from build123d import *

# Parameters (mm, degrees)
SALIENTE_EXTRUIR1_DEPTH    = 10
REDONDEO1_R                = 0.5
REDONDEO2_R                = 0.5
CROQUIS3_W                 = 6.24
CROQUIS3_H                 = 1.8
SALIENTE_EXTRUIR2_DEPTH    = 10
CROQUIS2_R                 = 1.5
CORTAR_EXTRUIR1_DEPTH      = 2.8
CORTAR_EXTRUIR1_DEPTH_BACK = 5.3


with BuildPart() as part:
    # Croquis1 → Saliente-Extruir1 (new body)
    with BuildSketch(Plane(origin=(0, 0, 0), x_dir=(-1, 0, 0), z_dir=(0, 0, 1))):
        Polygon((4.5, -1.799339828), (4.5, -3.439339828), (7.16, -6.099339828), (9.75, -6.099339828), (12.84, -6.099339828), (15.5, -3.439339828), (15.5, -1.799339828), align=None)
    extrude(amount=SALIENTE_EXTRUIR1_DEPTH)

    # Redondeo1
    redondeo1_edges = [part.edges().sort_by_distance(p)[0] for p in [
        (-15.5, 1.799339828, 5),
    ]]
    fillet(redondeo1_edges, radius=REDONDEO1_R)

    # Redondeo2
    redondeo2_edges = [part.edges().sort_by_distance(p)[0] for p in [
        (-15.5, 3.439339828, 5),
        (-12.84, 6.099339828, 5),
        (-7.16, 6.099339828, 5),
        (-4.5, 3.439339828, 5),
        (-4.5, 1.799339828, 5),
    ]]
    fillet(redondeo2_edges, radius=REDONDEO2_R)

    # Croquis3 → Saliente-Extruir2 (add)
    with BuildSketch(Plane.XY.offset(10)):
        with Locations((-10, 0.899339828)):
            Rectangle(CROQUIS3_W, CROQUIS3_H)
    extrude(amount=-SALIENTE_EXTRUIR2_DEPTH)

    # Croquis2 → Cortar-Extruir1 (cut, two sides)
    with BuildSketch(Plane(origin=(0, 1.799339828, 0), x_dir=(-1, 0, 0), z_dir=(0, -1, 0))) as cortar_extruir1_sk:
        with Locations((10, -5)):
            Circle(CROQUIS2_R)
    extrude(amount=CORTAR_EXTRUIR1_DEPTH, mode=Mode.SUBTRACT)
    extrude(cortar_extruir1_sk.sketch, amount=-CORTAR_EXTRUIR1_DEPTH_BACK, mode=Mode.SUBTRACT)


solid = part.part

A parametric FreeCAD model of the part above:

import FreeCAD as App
import Part
import Sketcher
from FreeCAD import Vector


def edges_at(feature, points):
    """Names of the edges that pass closest to the given points."""
    edges = feature.Shape.Edges
    near = lambda p: min(range(len(edges)), key=lambda i: edges[i].distToShape(Part.Vertex(*p))[0])
    return sorted({f"Edge{near(p) + 1}" for p in points})

doc = App.newDocument("Part")
body = doc.addObject("PartDesign::Body", "Body")

# Sketch on XY plane
sketch1 = body.newObject("Sketcher::SketchObject", "Sketch")
sketch1.AttachmentSupport = (doc.getObject("XY_Plane"), [""])
sketch1.MapMode = "FlatFace"
sketch1.addGeometry([
    Part.LineSegment(Vector(-4.5, 1.79934, 0), Vector(-4.5, 3.43934, 0)),  # 0
    Part.LineSegment(Vector(-4.5, 3.43934, 0), Vector(-7.16, 6.09934, 0)),  # 1
    Part.LineSegment(Vector(-7.16, 6.09934, 0), Vector(-12.84, 6.09934, 0)),  # 2
    Part.LineSegment(Vector(-12.84, 6.09934, 0), Vector(-15.5, 3.43934, 0)),  # 3
    Part.LineSegment(Vector(-15.5, 3.43934, 0), Vector(-15.5, 1.79934, 0)),  # 4
    Part.LineSegment(Vector(-15.5, 1.79934, 0), Vector(-4.5, 1.79934, 0)),  # 5
], False)
sketch1.addConstraint([
    Sketcher.Constraint("Coincident", 0, 2, 1, 1),
    Sketcher.Constraint("Coincident", 1, 2, 2, 1),
    Sketcher.Constraint("Coincident", 2, 2, 3, 1),
    Sketcher.Constraint("Coincident", 3, 2, 4, 1),
    Sketcher.Constraint("Coincident", 4, 2, 5, 1),
    Sketcher.Constraint("Coincident", 5, 2, 0, 1),
    Sketcher.Constraint("Vertical", 0),
    Sketcher.Constraint("Horizontal", 2),
    Sketcher.Constraint("Vertical", 4),
    Sketcher.Constraint("Horizontal", 5),
    Sketcher.Constraint("Perpendicular", 1, 3),
    Sketcher.Constraint("Horizontal", 0, 2, 3, 2),
    Sketcher.Constraint("Equal", 1, 3),
    Sketcher.Constraint("DistanceX", 5, 1, 5, 2, 11.0),
    Sketcher.Constraint("DistanceX", 2, 2, 2, 1, 5.68),
    Sketcher.Constraint("DistanceY", 0, 1, 0, 2, 1.64),
    Sketcher.Constraint("DistanceX", 0, 2, -1, 1, 4.5),
    Sketcher.Constraint("DistanceY", -1, 1, 0, 2, 3.43934),
])
pad1 = body.newObject("PartDesign::Pad", "Pad")
pad1.Profile = sketch1
pad1.Length = 10
doc.recompute()

fillet = body.newObject("PartDesign::Fillet", "Fillet")
fillet.Base = (pad1, edges_at(pad1, [(-15.5, 1.799, 5)]))
fillet.Radius = 0.5
doc.recompute()

fillet2 = body.newObject("PartDesign::Fillet", "Fillet001")
fillet2.Base = (fillet, edges_at(fillet, [
    (-15.5, 3.439, 5),
    (-12.84, 6.099, 5),
    (-7.16, 6.099, 5),
    (-4.5, 3.439, 5),
    (-4.5, 1.799, 5),
]))
fillet2.Radius = 0.5

# Sketch on XY plane
sketch2 = body.newObject("Sketcher::SketchObject", "Sketch001")
sketch2.AttachmentSupport = (doc.getObject("XY_Plane"), [""])
sketch2.MapMode = "FlatFace"
sketch2.AttachmentOffset = App.Placement(Vector(0, 0, 10), App.Rotation())
sketch2.addGeometry([
    Part.LineSegment(Vector(-13.12, 1.79934, 0), Vector(-13.12, -0.00066, 0)),
    Part.LineSegment(Vector(-13.12, -0.00066, 0), Vector(-6.88, -0.00066, 0)),
    Part.LineSegment(Vector(-6.88, -0.00066, 0), Vector(-6.88, 1.79934, 0)),
    Part.LineSegment(Vector(-6.88, 1.79934, 0), Vector(-13.12, 1.79934, 0)),
], False)
sketch2.addConstraint([
    Sketcher.Constraint("Coincident", 0, 2, 1, 1),
    Sketcher.Constraint("Coincident", 1, 2, 2, 1),
    Sketcher.Constraint("Coincident", 2, 2, 3, 1),
    Sketcher.Constraint("Coincident", 3, 2, 0, 1),
    Sketcher.Constraint("Vertical", 0),
    Sketcher.Constraint("Horizontal", 1),
    Sketcher.Constraint("Vertical", 2),
    Sketcher.Constraint("Horizontal", 3),
    Sketcher.Constraint("DistanceY", 0, 2, 0, 1, 1.8),
    Sketcher.Constraint("DistanceX", 1, 1, 1, 2, 6.24),
    Sketcher.Constraint("DistanceX", 0, 2, -1, 1, 13.12),
    Sketcher.Constraint("DistanceY", 0, 2, -1, 1, 0.00066),
])
pad2 = body.newObject("PartDesign::Pad", "Pad001")
pad2.Profile = sketch2
pad2.Length = 10
pad2.Reversed = True

# Sketch on XZ plane
sketch3 = body.newObject("Sketcher::SketchObject", "Sketch002")
sketch3.AttachmentSupport = (doc.getObject("XZ_Plane"), [""])
sketch3.MapMode = "FlatFace"
sketch3.AttachmentOffset = App.Placement(Vector(0, 0, -1.79934), App.Rotation())
sketch3.addGeometry(Part.Circle(Vector(-10, 5, 0), Vector(0, 0, 1), 1.5), False)
sketch3.addConstraint([
    Sketcher.Constraint("Diameter", 0, 3.0),
    Sketcher.Constraint("DistanceX", 0, 3, -1, 1, 10.0),
    Sketcher.Constraint("DistanceY", -1, 1, 0, 3, 5.0),
])
pocket1 = body.newObject("PartDesign::Pocket", "Pocket")
pocket1.Profile = sketch3
pocket1.Type = "ThroughAll"
pocket1.Midplane = True

doc.recompute()
